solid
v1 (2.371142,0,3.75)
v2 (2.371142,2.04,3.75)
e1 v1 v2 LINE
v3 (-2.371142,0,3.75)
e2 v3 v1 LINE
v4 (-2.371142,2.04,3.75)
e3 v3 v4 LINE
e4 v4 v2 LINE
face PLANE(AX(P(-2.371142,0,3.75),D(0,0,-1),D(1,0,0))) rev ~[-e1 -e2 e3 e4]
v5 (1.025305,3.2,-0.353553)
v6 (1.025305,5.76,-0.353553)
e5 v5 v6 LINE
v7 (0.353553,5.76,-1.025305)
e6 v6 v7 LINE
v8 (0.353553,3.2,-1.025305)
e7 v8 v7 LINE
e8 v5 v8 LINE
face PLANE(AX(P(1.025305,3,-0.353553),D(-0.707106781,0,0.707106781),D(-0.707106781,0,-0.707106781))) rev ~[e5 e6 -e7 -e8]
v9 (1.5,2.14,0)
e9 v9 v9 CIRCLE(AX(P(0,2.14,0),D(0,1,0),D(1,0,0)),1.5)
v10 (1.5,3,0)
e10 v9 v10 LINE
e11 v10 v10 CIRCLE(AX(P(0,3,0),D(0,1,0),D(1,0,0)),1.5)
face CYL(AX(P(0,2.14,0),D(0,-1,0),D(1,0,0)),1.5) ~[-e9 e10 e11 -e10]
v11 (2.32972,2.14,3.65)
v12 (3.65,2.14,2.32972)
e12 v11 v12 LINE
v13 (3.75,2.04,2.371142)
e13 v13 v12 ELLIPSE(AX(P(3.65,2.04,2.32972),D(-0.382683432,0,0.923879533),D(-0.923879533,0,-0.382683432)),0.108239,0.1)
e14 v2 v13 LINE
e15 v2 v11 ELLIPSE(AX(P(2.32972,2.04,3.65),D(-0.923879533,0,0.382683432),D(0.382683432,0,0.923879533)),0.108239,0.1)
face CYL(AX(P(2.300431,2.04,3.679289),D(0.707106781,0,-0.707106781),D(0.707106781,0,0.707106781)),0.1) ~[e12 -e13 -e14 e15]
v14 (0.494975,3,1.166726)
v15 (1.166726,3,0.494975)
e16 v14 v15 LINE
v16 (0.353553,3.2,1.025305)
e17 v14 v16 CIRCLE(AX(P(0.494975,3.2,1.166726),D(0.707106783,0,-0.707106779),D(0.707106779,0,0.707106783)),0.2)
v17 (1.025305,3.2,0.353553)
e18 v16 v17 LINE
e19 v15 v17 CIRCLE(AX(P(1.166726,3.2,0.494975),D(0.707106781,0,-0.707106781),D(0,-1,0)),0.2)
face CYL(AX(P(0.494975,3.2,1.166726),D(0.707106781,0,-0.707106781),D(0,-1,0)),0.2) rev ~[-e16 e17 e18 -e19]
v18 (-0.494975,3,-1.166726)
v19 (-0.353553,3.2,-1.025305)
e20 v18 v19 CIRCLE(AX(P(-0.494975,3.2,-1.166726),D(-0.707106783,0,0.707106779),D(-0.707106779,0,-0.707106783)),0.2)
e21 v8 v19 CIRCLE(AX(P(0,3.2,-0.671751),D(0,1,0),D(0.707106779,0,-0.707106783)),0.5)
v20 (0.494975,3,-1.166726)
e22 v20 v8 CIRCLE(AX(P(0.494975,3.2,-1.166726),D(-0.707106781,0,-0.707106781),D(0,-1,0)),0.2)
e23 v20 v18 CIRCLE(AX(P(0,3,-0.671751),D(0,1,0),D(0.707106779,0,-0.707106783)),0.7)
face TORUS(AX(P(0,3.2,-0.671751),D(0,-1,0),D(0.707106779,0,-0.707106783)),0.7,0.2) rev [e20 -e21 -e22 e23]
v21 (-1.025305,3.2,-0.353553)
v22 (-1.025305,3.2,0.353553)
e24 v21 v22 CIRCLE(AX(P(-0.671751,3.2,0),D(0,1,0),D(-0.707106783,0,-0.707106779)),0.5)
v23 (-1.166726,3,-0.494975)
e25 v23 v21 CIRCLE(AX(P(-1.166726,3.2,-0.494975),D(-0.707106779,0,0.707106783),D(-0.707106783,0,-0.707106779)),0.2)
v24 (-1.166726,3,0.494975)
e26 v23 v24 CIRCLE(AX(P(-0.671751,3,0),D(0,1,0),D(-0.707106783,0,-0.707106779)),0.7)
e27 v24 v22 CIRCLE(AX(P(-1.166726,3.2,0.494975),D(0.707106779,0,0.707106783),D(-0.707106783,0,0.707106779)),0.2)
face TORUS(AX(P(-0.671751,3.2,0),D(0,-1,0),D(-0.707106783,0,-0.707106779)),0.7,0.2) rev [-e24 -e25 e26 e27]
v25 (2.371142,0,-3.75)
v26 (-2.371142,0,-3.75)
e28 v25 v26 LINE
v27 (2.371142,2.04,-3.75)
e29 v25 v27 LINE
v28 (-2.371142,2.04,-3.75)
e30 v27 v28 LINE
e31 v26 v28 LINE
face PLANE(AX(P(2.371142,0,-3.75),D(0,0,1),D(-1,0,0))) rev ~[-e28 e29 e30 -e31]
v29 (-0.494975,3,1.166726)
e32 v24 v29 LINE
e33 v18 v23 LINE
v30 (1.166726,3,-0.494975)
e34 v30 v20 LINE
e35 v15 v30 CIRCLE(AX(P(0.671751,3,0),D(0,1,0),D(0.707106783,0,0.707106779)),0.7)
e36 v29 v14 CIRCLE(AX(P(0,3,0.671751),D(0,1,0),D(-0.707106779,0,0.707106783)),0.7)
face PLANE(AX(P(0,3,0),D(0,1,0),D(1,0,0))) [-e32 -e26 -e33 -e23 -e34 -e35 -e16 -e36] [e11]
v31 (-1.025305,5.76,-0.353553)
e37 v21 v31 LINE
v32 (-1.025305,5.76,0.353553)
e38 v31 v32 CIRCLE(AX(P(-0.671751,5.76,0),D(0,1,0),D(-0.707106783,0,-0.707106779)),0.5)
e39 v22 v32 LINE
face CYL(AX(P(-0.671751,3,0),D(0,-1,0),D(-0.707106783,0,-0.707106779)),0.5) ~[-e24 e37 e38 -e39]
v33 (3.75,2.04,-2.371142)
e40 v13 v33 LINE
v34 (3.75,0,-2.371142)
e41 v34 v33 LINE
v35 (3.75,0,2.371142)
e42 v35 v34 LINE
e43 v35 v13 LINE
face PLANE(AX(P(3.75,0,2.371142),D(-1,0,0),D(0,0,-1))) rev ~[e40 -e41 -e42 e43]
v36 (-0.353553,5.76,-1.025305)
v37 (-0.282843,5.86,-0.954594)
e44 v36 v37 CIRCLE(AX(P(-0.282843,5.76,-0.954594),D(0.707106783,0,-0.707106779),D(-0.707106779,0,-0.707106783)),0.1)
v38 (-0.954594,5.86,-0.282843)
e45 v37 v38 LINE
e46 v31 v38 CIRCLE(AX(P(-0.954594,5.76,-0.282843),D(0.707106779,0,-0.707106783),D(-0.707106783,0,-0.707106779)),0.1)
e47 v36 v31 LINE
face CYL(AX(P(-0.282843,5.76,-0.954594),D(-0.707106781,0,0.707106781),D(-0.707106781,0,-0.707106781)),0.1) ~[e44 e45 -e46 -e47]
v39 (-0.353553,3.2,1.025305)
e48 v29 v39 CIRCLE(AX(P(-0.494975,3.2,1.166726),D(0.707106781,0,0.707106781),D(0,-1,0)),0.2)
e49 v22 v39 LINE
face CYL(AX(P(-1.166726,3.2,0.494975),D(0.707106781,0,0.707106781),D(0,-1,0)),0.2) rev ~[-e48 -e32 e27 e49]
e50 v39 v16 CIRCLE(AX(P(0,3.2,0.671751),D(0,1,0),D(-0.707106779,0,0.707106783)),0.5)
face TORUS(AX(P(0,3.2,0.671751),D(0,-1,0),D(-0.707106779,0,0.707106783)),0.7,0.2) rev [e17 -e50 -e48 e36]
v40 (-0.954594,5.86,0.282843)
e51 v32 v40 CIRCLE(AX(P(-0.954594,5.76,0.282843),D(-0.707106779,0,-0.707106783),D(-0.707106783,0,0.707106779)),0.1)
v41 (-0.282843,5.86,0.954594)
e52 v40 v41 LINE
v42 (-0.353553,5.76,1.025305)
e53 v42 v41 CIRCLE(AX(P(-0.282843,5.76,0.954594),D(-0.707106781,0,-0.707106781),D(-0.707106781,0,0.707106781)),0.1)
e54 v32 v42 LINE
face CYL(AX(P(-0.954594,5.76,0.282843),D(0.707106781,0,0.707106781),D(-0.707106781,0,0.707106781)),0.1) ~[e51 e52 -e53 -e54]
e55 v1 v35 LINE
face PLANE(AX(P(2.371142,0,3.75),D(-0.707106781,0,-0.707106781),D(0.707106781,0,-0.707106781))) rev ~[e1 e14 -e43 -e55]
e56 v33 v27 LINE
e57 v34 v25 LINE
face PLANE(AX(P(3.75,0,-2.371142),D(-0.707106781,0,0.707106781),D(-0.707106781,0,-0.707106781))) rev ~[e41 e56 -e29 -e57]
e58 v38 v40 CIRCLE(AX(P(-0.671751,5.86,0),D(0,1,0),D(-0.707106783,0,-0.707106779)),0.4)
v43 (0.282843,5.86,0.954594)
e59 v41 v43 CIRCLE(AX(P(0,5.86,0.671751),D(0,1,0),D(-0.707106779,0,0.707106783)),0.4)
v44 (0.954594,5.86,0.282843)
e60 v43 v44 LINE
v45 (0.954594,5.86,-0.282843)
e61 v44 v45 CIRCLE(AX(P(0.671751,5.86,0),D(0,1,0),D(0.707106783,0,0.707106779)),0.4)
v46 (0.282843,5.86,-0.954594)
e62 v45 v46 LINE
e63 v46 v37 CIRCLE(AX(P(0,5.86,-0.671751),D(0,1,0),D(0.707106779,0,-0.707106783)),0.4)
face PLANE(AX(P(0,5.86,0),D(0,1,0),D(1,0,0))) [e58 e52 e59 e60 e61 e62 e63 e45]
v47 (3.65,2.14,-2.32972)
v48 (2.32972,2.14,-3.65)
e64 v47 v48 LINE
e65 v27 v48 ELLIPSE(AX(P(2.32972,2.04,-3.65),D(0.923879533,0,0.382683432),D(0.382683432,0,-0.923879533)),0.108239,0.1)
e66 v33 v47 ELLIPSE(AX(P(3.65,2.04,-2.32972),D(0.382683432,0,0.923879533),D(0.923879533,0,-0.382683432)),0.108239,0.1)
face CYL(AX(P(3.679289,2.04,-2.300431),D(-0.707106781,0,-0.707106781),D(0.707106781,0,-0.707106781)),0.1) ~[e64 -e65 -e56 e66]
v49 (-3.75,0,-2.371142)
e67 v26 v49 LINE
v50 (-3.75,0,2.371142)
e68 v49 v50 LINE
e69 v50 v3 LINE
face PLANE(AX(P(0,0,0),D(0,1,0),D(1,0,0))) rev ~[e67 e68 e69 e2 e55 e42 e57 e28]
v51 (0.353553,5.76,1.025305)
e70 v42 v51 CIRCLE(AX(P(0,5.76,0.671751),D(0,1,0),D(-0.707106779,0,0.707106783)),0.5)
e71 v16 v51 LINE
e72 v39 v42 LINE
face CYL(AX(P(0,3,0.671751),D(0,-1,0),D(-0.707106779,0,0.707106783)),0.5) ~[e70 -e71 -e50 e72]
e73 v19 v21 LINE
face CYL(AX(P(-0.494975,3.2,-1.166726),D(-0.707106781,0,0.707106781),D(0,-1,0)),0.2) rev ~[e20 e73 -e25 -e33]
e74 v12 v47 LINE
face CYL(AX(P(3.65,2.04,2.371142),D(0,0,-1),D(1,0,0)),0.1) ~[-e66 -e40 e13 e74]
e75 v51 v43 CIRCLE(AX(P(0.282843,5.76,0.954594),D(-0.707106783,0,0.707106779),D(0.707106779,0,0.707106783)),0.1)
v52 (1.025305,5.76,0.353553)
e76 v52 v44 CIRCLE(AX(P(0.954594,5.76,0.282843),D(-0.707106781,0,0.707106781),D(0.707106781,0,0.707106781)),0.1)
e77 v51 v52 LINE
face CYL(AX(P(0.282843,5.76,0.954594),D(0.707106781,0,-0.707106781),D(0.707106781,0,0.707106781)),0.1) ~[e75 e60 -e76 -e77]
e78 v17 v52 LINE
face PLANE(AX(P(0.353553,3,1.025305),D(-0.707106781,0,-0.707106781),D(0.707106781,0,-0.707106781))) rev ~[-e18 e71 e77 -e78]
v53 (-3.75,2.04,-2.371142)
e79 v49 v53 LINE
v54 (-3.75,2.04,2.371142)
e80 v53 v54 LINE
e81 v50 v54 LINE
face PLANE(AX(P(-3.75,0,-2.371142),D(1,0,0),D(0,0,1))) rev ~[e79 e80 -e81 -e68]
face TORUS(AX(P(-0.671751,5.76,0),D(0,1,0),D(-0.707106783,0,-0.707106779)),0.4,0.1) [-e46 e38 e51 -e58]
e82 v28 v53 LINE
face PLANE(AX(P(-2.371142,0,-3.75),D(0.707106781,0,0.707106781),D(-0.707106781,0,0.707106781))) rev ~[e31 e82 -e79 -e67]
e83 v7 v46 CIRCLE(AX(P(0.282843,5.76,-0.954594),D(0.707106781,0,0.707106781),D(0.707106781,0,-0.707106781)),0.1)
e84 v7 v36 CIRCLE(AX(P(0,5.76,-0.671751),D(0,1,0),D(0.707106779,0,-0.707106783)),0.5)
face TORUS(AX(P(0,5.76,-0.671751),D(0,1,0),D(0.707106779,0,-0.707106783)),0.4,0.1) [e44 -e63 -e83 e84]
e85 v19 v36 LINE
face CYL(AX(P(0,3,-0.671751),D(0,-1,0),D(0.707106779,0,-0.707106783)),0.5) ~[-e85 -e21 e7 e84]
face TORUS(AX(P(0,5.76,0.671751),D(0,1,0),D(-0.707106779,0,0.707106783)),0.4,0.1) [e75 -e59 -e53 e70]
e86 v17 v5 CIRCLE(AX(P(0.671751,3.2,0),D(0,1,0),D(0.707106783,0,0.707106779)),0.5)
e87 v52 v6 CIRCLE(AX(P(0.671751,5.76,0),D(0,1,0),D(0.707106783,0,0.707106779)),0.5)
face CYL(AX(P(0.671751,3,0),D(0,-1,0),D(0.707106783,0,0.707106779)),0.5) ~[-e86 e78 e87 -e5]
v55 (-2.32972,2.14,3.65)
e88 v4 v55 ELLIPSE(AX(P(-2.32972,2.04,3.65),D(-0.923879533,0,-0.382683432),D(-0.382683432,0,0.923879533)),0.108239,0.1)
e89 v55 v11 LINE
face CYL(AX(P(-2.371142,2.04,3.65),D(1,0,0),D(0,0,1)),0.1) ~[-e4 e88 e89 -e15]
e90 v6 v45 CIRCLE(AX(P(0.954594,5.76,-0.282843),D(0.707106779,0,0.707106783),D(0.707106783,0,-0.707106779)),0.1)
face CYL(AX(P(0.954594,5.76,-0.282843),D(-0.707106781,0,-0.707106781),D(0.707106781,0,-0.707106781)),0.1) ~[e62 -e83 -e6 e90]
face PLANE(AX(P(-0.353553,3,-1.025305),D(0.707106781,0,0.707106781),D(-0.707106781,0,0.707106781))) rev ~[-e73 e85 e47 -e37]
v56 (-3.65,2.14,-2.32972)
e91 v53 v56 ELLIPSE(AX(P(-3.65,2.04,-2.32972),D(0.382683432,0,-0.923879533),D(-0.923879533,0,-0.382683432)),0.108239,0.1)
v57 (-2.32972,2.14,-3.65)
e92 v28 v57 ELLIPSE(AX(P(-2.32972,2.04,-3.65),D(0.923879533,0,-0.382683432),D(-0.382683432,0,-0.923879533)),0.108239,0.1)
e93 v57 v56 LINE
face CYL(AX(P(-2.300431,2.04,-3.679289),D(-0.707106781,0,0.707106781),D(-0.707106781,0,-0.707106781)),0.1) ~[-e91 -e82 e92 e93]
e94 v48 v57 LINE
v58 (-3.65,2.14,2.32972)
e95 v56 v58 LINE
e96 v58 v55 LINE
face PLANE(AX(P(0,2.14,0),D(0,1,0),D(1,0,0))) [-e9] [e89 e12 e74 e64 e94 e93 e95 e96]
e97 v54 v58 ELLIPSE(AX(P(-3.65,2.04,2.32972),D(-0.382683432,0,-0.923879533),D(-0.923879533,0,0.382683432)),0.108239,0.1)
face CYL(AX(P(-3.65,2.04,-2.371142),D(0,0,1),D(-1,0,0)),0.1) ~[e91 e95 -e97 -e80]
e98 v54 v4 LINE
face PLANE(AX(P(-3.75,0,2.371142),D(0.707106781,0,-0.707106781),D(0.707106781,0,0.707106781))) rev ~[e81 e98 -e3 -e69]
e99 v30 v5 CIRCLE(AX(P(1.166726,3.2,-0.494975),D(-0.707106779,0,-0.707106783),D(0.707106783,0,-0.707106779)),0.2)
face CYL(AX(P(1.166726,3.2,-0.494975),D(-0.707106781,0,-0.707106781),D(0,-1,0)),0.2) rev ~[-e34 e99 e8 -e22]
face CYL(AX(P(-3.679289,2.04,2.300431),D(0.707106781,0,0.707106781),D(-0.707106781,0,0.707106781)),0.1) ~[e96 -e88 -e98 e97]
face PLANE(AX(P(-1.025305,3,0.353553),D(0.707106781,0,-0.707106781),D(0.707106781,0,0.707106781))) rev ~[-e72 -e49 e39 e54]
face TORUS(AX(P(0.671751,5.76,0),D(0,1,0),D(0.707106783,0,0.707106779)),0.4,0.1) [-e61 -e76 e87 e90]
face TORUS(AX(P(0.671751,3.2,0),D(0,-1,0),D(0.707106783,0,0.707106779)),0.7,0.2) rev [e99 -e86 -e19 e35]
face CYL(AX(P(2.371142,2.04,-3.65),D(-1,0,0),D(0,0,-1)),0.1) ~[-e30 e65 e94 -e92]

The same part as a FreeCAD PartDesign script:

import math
import FreeCAD as App
import Part
import Sketcher

V = App.Vector


def edges_at(feature, points):
    """Names of the edges that pass closest to the given points."""
    edges = feature.Shape.Edges
    near = lambda p: min(range(len(edges)), key=lambda i: edges[i].distToShape(Part.Vertex(*p))[0])
    return sorted({f"Edge{near(p) + 1}" for p in points})


def add_polygon(sketch, points):
    """Adds a closed chain of lines whose ends are joined by coincident constraints."""
    first, n = sketch.GeometryCount, len(points)
    for a, b in zip(points, points[1:] + points[:1]):
        sketch.addGeometry(Part.LineSegment(App.Vector(*a, 0), App.Vector(*b, 0)), False)
    for i in range(n):
        sketch.addConstraint(Sketcher.Constraint("Coincident", first + i, 2, first + (i + 1) % n, 1))

doc = App.newDocument("Part")
params = doc.addObject("Spreadsheet::Sheet", "Params")
for row, (alias, value) in enumerate([
    ("sketch1_length", "1.95 mm"),
    ("pad1_length", "2.14 mm"),
    ("fillet_radius", "0.1 mm"),
    ("sketch2_diameter", "3 mm"),
    ("pad2_length", "0.86 mm"),
    ("sketch3_radius", "0.5 mm"),
    ("sketch3_length", "0.95 mm"),
    ("pad3_length", "2.86 mm"),
    ("fillet2_radius", "0.1 mm"),
    ("fillet3_radius", "0.2 mm"),
], start=1):
    params.set(f"A{row}", alias)
    params.set(f"B{row}", "=" + value)
    params.setAlias(f"B{row}", alias)

body = doc.addObject("PartDesign::Body", "Body")

# Sketch on XZ plane
sketch1 = body.newObject("Sketcher::SketchObject", "Sketch")
sketch1.AttachmentSupport = (doc.getObject("XZ_Plane"), [""])
sketch1.MapMode = "FlatFace"
add_polygon(sketch1, [(2.4, 3.8), (3.8, 2.4), (3.8, -2.4), (2.4, -3.8), (-2.4, -3.8), (-3.8, -2.4), (-3.8, 2.4), (-2.4, 3.8)])  # lines 0-7
sketch1.addConstraint(Sketcher.Constraint("Vertical", 1))
sketch1.addConstraint(Sketcher.Constraint("Horizontal", 3))
sketch1.addConstraint(Sketcher.Constraint("Vertical", 5))
sketch1.addConstraint(Sketcher.Constraint("Horizontal", 7))
sketch1.addConstraint(Sketcher.Constraint("Symmetric", 0, 2, 4, 2, -1, 1))
sketch1.addConstraint(Sketcher.Constraint("Symmetric", 2, 2, 6, 2, -1, 1))
sketch1.addConstraint(Sketcher.Constraint("Perpendicular", 0, 2))
sketch1.addConstraint(Sketcher.Constraint("Perpendicular", 2, 4))
sketch1.addConstraint(Sketcher.Constraint("Perpendicular", 4, 6))
sketch1.addConstraint(Sketcher.Constraint("Horizontal", 1, 2, 4, 2))
sketch1.addConstraint(Sketcher.Constraint("Vertical", 3, 2, 6, 2))
sketch1.addConstraint(Sketcher.Constraint("Equal", 7, 1))
sketch1.addConstraint(Sketcher.Constraint("DistanceX", 4, 2, 1, 2, 7.5))
sketch1.addConstraint(Sketcher.Constraint("Distance", 0, 1.95))
sketch1.setExpression("Constraints[21]", "Params.sketch1_length")
pad1 = body.newObject("PartDesign::Pad", "Pad")
pad1.Profile = sketch1
pad1.setExpression("Length", "Params.pad1_length")
pad1.Reversed = True
doc.recompute()

fillet = body.newObject("PartDesign::Fillet", "Fillet")
fillet.Base = (pad1, edges_at(pad1, [
    (3.75, 2.14, 0),
    (3.061, 2.14, -3.061),
    (0, 2.14, -3.75),
    (-3.061, 2.14, -3.061),
    (-3.75, 2.14, 0),
    (-3.061, 2.14, 3.061),
    (0, 2.14, 3.75),
    (3.061, 2.14, 3.061),
]))
fillet.setExpression("Radius", "Params.fillet_radius")

# Sketch on XZ plane
sketch2 = body.newObject("Sketcher::SketchObject", "Sketch001")
sketch2.AttachmentSupport = (doc.getObject("XZ_Plane"), [""])
sketch2.MapMode = "FlatFace"
sketch2.AttachmentOffset = App.Placement(V(0, 0, -2.14), App.Rotation())
sketch2.addGeometry(Part.Circle(V(0, 0, 0), V(0, 0, 1), 1.5), False)
sketch2.addConstraint(Sketcher.Constraint("Coincident", 0, 3, -1, 1))
sketch2.addConstraint(Sketcher.Constraint("Diameter", 0, 3.0))
sketch2.setExpression("Constraints[1]", "Params.sketch2_diameter")
pad2 = body.newObject("PartDesign::Pad", "Pad001")
pad2.Profile = sketch2
pad2.setExpression("Length", "Params.pad2_length")
pad2.Reversed = True

# Sketch on XZ plane
sketch3 = body.newObject("Sketcher::SketchObject", "Sketch002")
sketch3.AttachmentSupport = (doc.getObject("XZ_Plane"), [""])
sketch3.MapMode = "FlatFace"
sketch3.AttachmentOffset = App.Placement(V(0, 0, -3), App.Rotation())
sketch3.addGeometry(Part.LineSegment(V(-0.4, -1, 0), V(-1, -0.4, 0)), False)
sketch3.addGeometry(Part.ArcOfCircle(Part.Circle(V(-0.7, 0, 0), V(0, 0, 1), 0.5), math.radians(135), math.radians(225)), False)
sketch3.addGeometry(Part.LineSegment(V(-1, 0.4, 0), V(-0.4, 1, 0)), False)
sketch3.addGeometry(Part.ArcOfCircle(Part.Circle(V(0, 0.7, 0), V(0, 0, 1), 0.5), math.radians(45), math.radians(135)), False)
sketch3.addGeometry(Part.LineSegment(V(0.4, 1, 0), V(1, 0.4, 0)), False)
sketch3.addGeometry(Part.ArcOfCircle(Part.Circle(V(0.7, 0, 0), V(0, 0, 1), 0.5), math.radians(-45), math.radians(45)), False)
sketch3.addGeometry(Part.LineSegment(V(1, -0.4, 0), V(0.4, -1, 0)), False)
sketch3.addGeometry(Part.ArcOfCircle(Part.Circle(V(0, -0.7, 0), V(0, 0, 1), 0.5), math.radians(-135), math.radians(-45)), False)
sketch3.addConstraint(Sketcher.Constraint("Tangent", 0, 2, 1, 2))
sketch3.addConstraint(Sketcher.Constraint("Tangent", 1, 1, 2, 1))
sketch3.addConstraint(Sketcher.Constraint("Tangent", 2, 2, 3, 2))
sketch3.addConstraint(Sketcher.Constraint("Tangent", 3, 1, 4, 1))
sketch3.addConstraint(Sketcher.Constraint("Tangent", 4, 2, 5, 2))
sketch3.addConstraint(Sketcher.Constraint("Tangent", 5, 1, 6, 1))
sketch3.addConstraint(Sketcher.Constraint("Tangent", 6, 2, 7, 2))
sketch3.addConstraint(Sketcher.Constraint("Tangent", 7, 1, 0, 1))
sketch3.addConstraint(Sketcher.Constraint("Equal", 1, 3))
sketch3.addConstraint(Sketcher.Constraint("Equal", 3, 5))
sketch3.addConstraint(Sketcher.Constraint("Equal", 5, 7))
sketch3.addConstraint(Sketcher.Constraint("Symmetric", 1, 3, 5, 3, -1, 1))
sketch3.addConstraint(Sketcher.Constraint("Symmetric", 3, 3, 7, 3, -1, 1))
sketch3.addConstraint(Sketcher.Constraint("Symmetric", 2, 2, 3, 1, -2))
sketch3.addConstraint(Sketcher.Constraint("Perpendicular", 0, 2))
sketch3.addConstraint(Sketcher.Constraint("Radius", 1, 0.5))
sketch3.addConstraint(Sketcher.Constraint("Distance", 0, 0.95))
sketch3.setExpression("Constraints[15]", "Params.sketch3_radius")
sketch3.setExpression("Constraints[16]", "Params.sketch3_length")
pad3 = body.newObject("PartDesign::Pad", "Pad002")
pad3.Profile = sketch3
pad3.setExpression("Length", "Params.pad3_length")
pad3.Reversed = True
doc.recompute()

fillet2 = body.newObject("PartDesign::Fillet", "Fillet001")
fillet2.Base = (pad3, edges_at(pad3, [
    (-1.172, 5.86, 0),
    (-0.689, 5.86, 0.689),
    (0, 5.86, 1.172),
    (0.689, 5.86, 0.689),
    (1.172, 5.86, 0),
    (0.689, 5.86, -0.689),
    (0, 5.86, -1.172),
    (-0.689, 5.86, -0.689),
]))
fillet2.setExpression("Radius", "Params.fillet2_radius")
doc.recompute()

fillet3 = body.newObject("PartDesign::Fillet", "Fillet002")
fillet3.Base = (fillet2, edges_at(fillet2, [
    (-1.172, 3, 0),
    (-0.689, 3, 0.689),
    (0, 3, 1.172),
    (0.689, 3, 0.689),
    (1.172, 3, 0),
    (0.689, 3, -0.689),
    (0, 3, -1.172),
    (-0.689, 3, -0.689),
]))
fillet3.setExpression("Radius", "Params.fillet3_radius")

doc.recompute()
